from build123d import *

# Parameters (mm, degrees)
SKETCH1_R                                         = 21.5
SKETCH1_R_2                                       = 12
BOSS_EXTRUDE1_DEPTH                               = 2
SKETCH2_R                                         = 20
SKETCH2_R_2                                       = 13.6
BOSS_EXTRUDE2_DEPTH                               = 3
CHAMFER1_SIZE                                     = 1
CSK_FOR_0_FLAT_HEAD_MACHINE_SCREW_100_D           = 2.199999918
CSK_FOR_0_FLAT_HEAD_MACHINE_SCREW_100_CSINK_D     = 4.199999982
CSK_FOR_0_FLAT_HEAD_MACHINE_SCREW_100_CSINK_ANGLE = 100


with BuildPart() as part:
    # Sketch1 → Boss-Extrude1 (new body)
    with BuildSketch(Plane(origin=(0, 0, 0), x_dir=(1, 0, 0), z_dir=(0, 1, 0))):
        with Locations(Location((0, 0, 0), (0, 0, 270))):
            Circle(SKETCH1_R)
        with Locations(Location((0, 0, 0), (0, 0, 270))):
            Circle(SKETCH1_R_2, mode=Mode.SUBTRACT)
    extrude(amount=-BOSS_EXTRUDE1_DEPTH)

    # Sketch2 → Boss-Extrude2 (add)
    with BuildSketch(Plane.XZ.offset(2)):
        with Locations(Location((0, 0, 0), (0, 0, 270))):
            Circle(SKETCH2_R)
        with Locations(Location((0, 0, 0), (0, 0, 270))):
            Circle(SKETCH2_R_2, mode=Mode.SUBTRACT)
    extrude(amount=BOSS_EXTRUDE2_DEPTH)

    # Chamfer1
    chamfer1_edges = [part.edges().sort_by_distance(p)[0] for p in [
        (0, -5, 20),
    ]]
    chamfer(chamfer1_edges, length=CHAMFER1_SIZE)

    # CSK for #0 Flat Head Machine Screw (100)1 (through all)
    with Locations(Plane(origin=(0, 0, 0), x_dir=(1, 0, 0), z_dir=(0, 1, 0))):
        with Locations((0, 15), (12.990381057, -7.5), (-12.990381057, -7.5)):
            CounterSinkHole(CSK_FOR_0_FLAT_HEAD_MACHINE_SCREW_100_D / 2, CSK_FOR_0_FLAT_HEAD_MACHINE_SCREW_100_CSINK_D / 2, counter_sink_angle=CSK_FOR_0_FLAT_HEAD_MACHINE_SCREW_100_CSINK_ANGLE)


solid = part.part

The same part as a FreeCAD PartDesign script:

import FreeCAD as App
import Part
import Sketcher
from FreeCAD import Vector
Q = App.Units.Quantity


def edges_at(feature, points):
    """Names of the edges that pass closest to the given points."""
    edges = feature.Shape.Edges
    near = lambda p: min(range(len(edges)), key=lambda i: edges[i].distToShape(Part.Vertex(*p))[0])
    return sorted({f"Edge{near(p) + 1}" for p in points})

doc = App.newDocument("Part")
body = doc.addObject("PartDesign::Body", "Body")

sketch1 = doc.addObject("Sketcher::SketchObject", "Sketch")
body.addObject(sketch1)
sketch1.AttachmentSupport = (doc.XZ_Plane, [""])
sketch1.MapMode = "FlatFace"
sketch1.addGeometry(Part.Circle(Vector(0, 0, 0), Vector(0, 0, 1), 22), False)
sketch1.addGeometry(Part.Circle(Vector(0, 0, 0), Vector(0, 0, 1), 12), False)
sketch1.addConstraint(Sketcher.Constraint("Coincident", 0, 3, -1, 1))
sketch1.addConstraint(Sketcher.Constraint("Coincident", 1, 3, -1, 1))
sketch1.addConstraint(Sketcher.Constraint("Diameter", 0, Q("43 mm")))
sketch1.addConstraint(Sketcher.Constraint("Diameter", 1, Q("24 mm")))
pad1 = doc.addObject("PartDesign::Pad", "Pad")
body.addObject(pad1)
pad1.Profile = sketch1
pad1.Length = 2

sketch2 = doc.addObject("Sketcher::SketchObject", "Sketch001")
body.addObject(sketch2)
sketch2.AttachmentSupport = (doc.XZ_Plane, [""])
sketch2.MapMode = "FlatFace"
sketch2.AttachmentOffset = App.Placement(Vector(0, 0, 2), App.Rotation())
sketch2.addGeometry(Part.Circle(Vector(0, 0, 0), Vector(0, 0, 1), 20), False)
sketch2.addGeometry(Part.Circle(Vector(0, 0, 0), Vector(0, 0, 1), 14), False)
sketch2.addConstraint(Sketcher.Constraint("Coincident", 0, 3, -1, 1))
sketch2.addConstraint(Sketcher.Constraint("Coincident", 1, 3, -1, 1))
sketch2.addConstraint(Sketcher.Constraint("Diameter", 0, Q("40 mm")))
sketch2.addConstraint(Sketcher.Constraint("Diameter", 1, Q("27.2 mm")))
pad2 = doc.addObject("PartDesign::Pad", "Pad001")
body.addObject(pad2)
pad2.Profile = sketch2
pad2.Length = 3
doc.recompute()

chamfer = doc.addObject("PartDesign::Chamfer", "Chamfer")
body.addObject(chamfer)
chamfer.Base = (pad2, edges_at(pad2, [(0, -5, 20)]))
chamfer.Size = 1

sketch3 = doc.addObject("Sketcher::SketchObject", "Sketch002")
body.addObject(sketch3)
sketch3.AttachmentSupport = (doc.XZ_Plane, [""])
sketch3.MapMode = "FlatFace"
sketch3.addGeometry(Part.Circle(Vector(0, -15, 0), Vector(0, 0, 1), 1.1), False)
sketch3.addGeometry(Part.Circle(Vector(13, 7.5, 0), Vector(0, 0, 1), 1.1), False)
sketch3.addGeometry(Part.Circle(Vector(-13, 7.5, 0), Vector(0, 0, 1), 1.1), False)
sketch3.addConstraint(Sketcher.Constraint("Equal", 0, 1))
sketch3.addConstraint(Sketcher.Constraint("Equal", 1, 2))
sketch3.addConstraint(Sketcher.Constraint("Symmetric", 1, 3, 2, 3, -2))
sketch3.addConstraint(Sketcher.Constraint("PointOnObject", 0, 3, -2))
sketch3.addConstraint(Sketcher.Constraint("Diameter", 0, Q("2.2 mm")))
sketch3.addConstraint(Sketcher.Constraint("DistanceY", 0, 3, -1, 1, Q("15 mm")))
sketch3.addConstraint(Sketcher.Constraint("DistanceY", -1, 1, 1, 3, Q("7.5 mm")))
sketch3.addConstraint(Sketcher.Constraint("DistanceX", -1, 1, 1, 3, Q("12.990381 mm")))
doc.recompute()
hole = doc.addObject("PartDesign::Hole", "Hole")
body.addObject(hole)
hole.Profile = sketch3
hole.ThreadType = "None"
hole.Diameter = 2.2
hole.DepthType = "ThroughAll"
hole.HoleCutType = "Countersink"
hole.HoleCutDiameter = 4.2
hole.HoleCutCountersinkAngle = 100
hole.Reversed = True

doc.recompute()
